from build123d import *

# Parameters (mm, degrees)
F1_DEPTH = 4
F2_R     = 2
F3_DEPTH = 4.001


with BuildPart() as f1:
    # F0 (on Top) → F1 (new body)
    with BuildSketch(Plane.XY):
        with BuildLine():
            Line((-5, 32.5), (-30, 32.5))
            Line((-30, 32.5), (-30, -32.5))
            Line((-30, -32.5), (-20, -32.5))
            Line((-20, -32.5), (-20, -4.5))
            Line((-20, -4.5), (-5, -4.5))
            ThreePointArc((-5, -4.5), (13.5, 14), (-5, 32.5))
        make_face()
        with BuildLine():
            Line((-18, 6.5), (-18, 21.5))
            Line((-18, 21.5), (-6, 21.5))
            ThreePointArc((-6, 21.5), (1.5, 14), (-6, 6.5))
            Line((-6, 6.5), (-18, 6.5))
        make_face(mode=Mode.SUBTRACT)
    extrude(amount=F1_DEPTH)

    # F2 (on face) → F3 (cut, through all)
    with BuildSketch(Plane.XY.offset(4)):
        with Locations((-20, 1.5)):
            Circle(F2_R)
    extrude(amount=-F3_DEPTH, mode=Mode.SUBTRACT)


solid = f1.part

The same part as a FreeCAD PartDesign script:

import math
import FreeCAD as App
import Part
import Sketcher
from FreeCAD import Vector

doc = App.newDocument("Part")
params = doc.addObject("Spreadsheet::Sheet", "Params")
for row, (alias, value) in enumerate([
    ("sketch1_radius", "18.5 mm"),
    ("sketch1_radius2", "7.5 mm"),
    ("sketch1_width", "25 mm"),
    ("sketch1_width2", "12 mm"),
    ("sketch1_height", "65 mm"),
    ("pad1_length", "4 mm"),
    ("sketch2_diameter", "4 mm"),
], start=1):
    params.set(f"A{row}", alias)
    params.set(f"B{row}", "=" + value)
    params.setAlias(f"B{row}", alias)

body = doc.addObject("PartDesign::Body", "Body")

# Sketch on XY plane
sketch1 = doc.addObject("Sketcher::SketchObject", "Sketch")
body.addObject(sketch1)
sketch1.AttachmentSupport = (doc.XY_Plane, [""])
sketch1.MapMode = "FlatFace"
sketch1.addGeometry([
    Part.LineSegment(Vector(-5, 32, 0), Vector(-30, 32, 0)),  # 0
    Part.LineSegment(Vector(-30, 32, 0), Vector(-30, -32, 0)),  # 1
    Part.LineSegment(Vector(-30, -32, 0), Vector(-20, -32, 0)),  # 2
    Part.LineSegment(Vector(-20, -32, 0), Vector(-20, -4, 0)),  # 3
    Part.LineSegment(Vector(-20, -4, 0), Vector(-5, -4, 0)),  # 4
    Part.ArcOfCircle(Part.Circle(Vector(-5, 14, 0), Vector(0, 0, 1), 18), math.radians(-90), math.radians(90)),  # 5
    Part.LineSegment(Vector(-6, 6, 0), Vector(-18, 6, 0)),  # 6
    Part.LineSegment(Vector(-18, 6, 0), Vector(-18, 22, 0)),  # 7
    Part.LineSegment(Vector(-18, 22, 0), Vector(-6, 22, 0)),  # 8
    Part.ArcOfCircle(Part.Circle(Vector(-6, 14, 0), Vector(0, 0, 1), 8), math.radians(-90), math.radians(90)),  # 9
], False)
sketch1.addConstraint([
    Sketcher.Constraint("Coincident", 0, 2, 1, 1),
    Sketcher.Constraint("Coincident", 1, 2, 2, 1),
    Sketcher.Constraint("Coincident", 2, 2, 3, 1),
    Sketcher.Constraint("Coincident", 3, 2, 4, 1),
    Sketcher.Constraint("Tangent", 4, 2, 5, 1),
    Sketcher.Constraint("Tangent", 5, 2, 0, 1),
    Sketcher.Constraint("Coincident", 6, 2, 7, 1),
    Sketcher.Constraint("Coincident", 7, 2, 8, 1),
    Sketcher.Constraint("Tangent", 8, 2, 9, 2),
    Sketcher.Constraint("Tangent", 9, 1, 6, 1),
    Sketcher.Constraint("Horizontal", 0),
    Sketcher.Constraint("Vertical", 1),
    Sketcher.Constraint("Horizontal", 2),
    Sketcher.Constraint("Vertical", 3),
    Sketcher.Constraint("Horizontal", 4),
    Sketcher.Constraint("Horizontal", 6),
    Sketcher.Constraint("Vertical", 7),
    Sketcher.Constraint("Horizontal", 8),
    Sketcher.Constraint("Horizontal", 5, 3, 9, 3),
    Sketcher.Constraint("Equal", 4, 7),
    Sketcher.Constraint("Radius", 5, 18.5),
    Sketcher.Constraint("Radius", 9, 7.5),
    Sketcher.Constraint("DistanceX", 0, 2, 0, 1, 25.0),
    Sketcher.Constraint("DistanceX", 6, 2, 6, 1, 12.0),
    Sketcher.Constraint("DistanceY", 1, 2, 1, 1, 65.0),
    Sketcher.Constraint("DistanceX", 5, 3, -1, 1, 5.0),
    Sketcher.Constraint("DistanceY", -1, 1, 5, 3, 14.0),
    Sketcher.Constraint("DistanceX", 9, 3, -1, 1, 6.0),
])
sketch1.setExpression("Constraints[20]", "Params.sketch1_radius")
sketch1.setExpression("Constraints[21]", "Params.sketch1_radius2")
sketch1.setExpression("Constraints[22]", "Params.sketch1_width")
sketch1.setExpression("Constraints[23]", "Params.sketch1_width2")
sketch1.setExpression("Constraints[24]", "Params.sketch1_height")
pad1 = doc.addObject("PartDesign::Pad", "Pad")
body.addObject(pad1)
pad1.Profile = sketch1
pad1.setExpression("Length", "Params.pad1_length")

# Sketch on XY plane
sketch2 = doc.addObject("Sketcher::SketchObject", "Sketch001")
body.addObject(sketch2)
sketch2.AttachmentSupport = (doc.XY_Plane, [""])
sketch2.MapMode = "FlatFace"
sketch2.AttachmentOffset = App.Placement(Vector(0, 0, 4), App.Rotation())
sketch2.addGeometry(Part.Circle(Vector(-20, 1.5, 0), Vector(0, 0, 1), 2), False)
sketch2.addConstraint([
    Sketcher.Constraint("Diameter", 0, 4.0),
    Sketcher.Constraint("DistanceX", 0, 3, -1, 1, 20.0),
    Sketcher.Constraint("DistanceY", -1, 1, 0, 3, 1.5),
])
sketch2.setExpression("Constraints[0]", "Params.sketch2_diameter")
pocket1 = doc.addObject("PartDesign::Pocket", "Pocket")
body.addObject(pocket1)
pocket1.Profile = sketch2
pocket1.Type = "ThroughAll"

doc.recompute()
